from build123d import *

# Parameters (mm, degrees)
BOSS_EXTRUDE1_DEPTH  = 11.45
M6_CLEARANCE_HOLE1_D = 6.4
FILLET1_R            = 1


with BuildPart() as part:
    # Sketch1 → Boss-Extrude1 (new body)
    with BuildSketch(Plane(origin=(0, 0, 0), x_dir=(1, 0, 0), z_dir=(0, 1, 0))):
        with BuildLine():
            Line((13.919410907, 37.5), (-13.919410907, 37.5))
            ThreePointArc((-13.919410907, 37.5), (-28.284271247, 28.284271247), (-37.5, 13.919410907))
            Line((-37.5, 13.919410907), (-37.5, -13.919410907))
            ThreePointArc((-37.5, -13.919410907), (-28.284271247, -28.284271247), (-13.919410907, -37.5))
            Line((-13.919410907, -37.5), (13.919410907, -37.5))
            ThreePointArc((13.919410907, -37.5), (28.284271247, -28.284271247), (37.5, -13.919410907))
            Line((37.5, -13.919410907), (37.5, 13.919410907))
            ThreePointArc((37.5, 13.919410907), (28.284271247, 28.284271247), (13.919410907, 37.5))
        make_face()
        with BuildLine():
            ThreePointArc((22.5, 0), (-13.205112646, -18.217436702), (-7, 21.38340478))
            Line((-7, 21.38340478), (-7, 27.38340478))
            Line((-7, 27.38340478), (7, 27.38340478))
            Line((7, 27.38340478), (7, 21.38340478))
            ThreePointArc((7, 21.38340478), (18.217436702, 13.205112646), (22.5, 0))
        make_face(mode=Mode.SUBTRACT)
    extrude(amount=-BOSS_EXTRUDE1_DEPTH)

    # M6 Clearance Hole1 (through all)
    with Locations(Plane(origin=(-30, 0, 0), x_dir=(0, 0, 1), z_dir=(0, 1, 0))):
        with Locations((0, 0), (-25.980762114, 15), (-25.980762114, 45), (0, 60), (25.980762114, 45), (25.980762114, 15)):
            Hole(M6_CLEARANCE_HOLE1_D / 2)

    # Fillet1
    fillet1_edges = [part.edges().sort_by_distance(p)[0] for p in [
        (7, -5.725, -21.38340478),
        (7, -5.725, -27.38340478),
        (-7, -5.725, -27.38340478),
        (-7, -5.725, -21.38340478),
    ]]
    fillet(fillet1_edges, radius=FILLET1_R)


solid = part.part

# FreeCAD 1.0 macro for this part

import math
import FreeCAD as App
import Part
import Sketcher

V = App.Vector


def edges_at(feature, points):
    """Names of the edges that pass closest to the given points."""
    edges = feature.Shape.Edges
    near = lambda p: min(range(len(edges)), key=lambda i: edges[i].distToShape(Part.Vertex(*p))[0])
    return sorted({f"Edge{near(p) + 1}" for p in points})

doc = App.newDocument("Part")
body = doc.addObject("PartDesign::Body", "Body")

# Sketch on XZ plane
sketch1 = doc.addObject("Sketcher::SketchObject", "Sketch")
body.addObject(sketch1)
sketch1.AttachmentSupport = (doc.XZ_Plane, [""])
sketch1.MapMode = "FlatFace"
sketch1.addGeometry([
    Part.LineSegment(V(14, -38, 0), V(-14, -38, 0)),  # 0
    Part.ArcOfCircle(Part.Circle(V(0, 0, 0), V(0, 0, 1), 40), math.radians(-160), math.radians(-110)),  # 1
    Part.LineSegment(V(-38, -14, 0), V(-38, 14, 0)),  # 2
    Part.ArcOfCircle(Part.Circle(V(0, 0, 0), V(0, 0, 1), 40), math.radians(110), math.radians(160)),  # 3
    Part.LineSegment(V(-14, 38, 0), V(14, 38, 0)),  # 4
    Part.ArcOfCircle(Part.Circle(V(0, 0, 0), V(0, 0, 1), 40), math.radians(20), math.radians(70)),  # 5
    Part.LineSegment(V(38, 14, 0), V(38, -14, 0)),  # 6
    Part.ArcOfCircle(Part.Circle(V(0, 0, 0), V(0, 0, 1), 40), math.radians(-70), math.radians(-20)),  # 7
    Part.ArcOfCircle(Part.Circle(V(0, 0, 0), V(0, 0, 1), 23), math.radians(-72), math.radians(0)),  # 8
    Part.ArcOfCircle(Part.Circle(V(0, 0, 0), V(0, 0, 1), 22), math.radians(0), math.radians(252)),  # 9
    Part.LineSegment(V(-7, -21, 0), V(-7, -27, 0)),  # 10
    Part.LineSegment(V(-7, -27, 0), V(7, -27, 0)),  # 11
    Part.LineSegment(V(7, -27, 0), V(7, -21, 0)),  # 12
], False)
sketch1.addConstraint([
    Sketcher.Constraint("Coincident", 0, 2, 1, 2),
    Sketcher.Constraint("Coincident", 1, 1, 2, 1),
    Sketcher.Constraint("Coincident", 2, 2, 3, 2),
    Sketcher.Constraint("Coincident", 3, 1, 4, 1),
    Sketcher.Constraint("Coincident", 4, 2, 5, 2),
    Sketcher.Constraint("Coincident", 5, 1, 6, 1),
    Sketcher.Constraint("Coincident", 6, 2, 7, 2),
    Sketcher.Constraint("Coincident", 7, 1, 0, 1),
    Sketcher.Constraint("Tangent", 8, 2, 9, 1),
    Sketcher.Constraint("Coincident", 9, 2, 10, 1),
    Sketcher.Constraint("Coincident", 10, 2, 11, 1),
    Sketcher.Constraint("Coincident", 11, 2, 12, 1),
    Sketcher.Constraint("Coincident", 12, 2, 8, 1),
    Sketcher.Constraint("Horizontal", 0),
    Sketcher.Constraint("Vertical", 2),
    Sketcher.Constraint("Horizontal", 4),
    Sketcher.Constraint("Vertical", 6),
    Sketcher.Constraint("Vertical", 10),
    Sketcher.Constraint("Horizontal", 11),
    Sketcher.Constraint("Vertical", 12),
    Sketcher.Constraint("Coincident", 1, 3, -1, 1),
    Sketcher.Constraint("Coincident", 3, 3, -1, 1),
    Sketcher.Constraint("Coincident", 5, 3, -1, 1),
    Sketcher.Constraint("Coincident", 7, 3, -1, 1),
    Sketcher.Constraint("Coincident", 8, 3, -1, 1),
    Sketcher.Constraint("Equal", 1, 3),
    Sketcher.Constraint("Equal", 3, 5),
    Sketcher.Constraint("Equal", 5, 7),
    Sketcher.Constraint("Equal", 8, 9),
    Sketcher.Constraint("PointOnObject", 8, 2, -1),
    Sketcher.Constraint("Horizontal", 2, 2, 5, 1),
    Sketcher.Constraint("Horizontal", 9, 2, 12, 2),
    Sketcher.Constraint("Vertical", 0, 2, 3, 1),
    Sketcher.Constraint("Equal", 4, 2),
    Sketcher.Constraint("Radius", 1, 40.0),
    Sketcher.Constraint("Radius", 8, 22.5),
    Sketcher.Constraint("DistanceX", 11, 1, 11, 2, 14.0),
    Sketcher.Constraint("DistanceY", 10, 2, 10, 1, 6.0),
    Sketcher.Constraint("DistanceX", 8, 2, 5, 1, 15.0),
])
pad1 = doc.addObject("PartDesign::Pad", "Pad")
body.addObject(pad1)
pad1.Profile = sketch1
pad1.Length = 11.45

# Sketch on XZ plane
sketch2 = doc.addObject("Sketcher::SketchObject", "Sketch001")
body.addObject(sketch2)
sketch2.AttachmentSupport = (doc.XZ_Plane, [""])
sketch2.MapMode = "FlatFace"
sketch2.addGeometry([
    Part.Circle(V(-30, 0, 0), V(0, 0, 1), 3.2),  # 0
    Part.Circle(V(-15, -26, 0), V(0, 0, 1), 3.2),  # 1
    Part.Circle(V(15, -26, 0), V(0, 0, 1), 3.2),  # 2
    Part.Circle(V(30, 0, 0), V(0, 0, 1), 3.2),  # 3
    Part.Circle(V(15, 26, 0), V(0, 0, 1), 3.2),  # 4
    Part.Circle(V(-15, 26, 0), V(0, 0, 1), 3.2),  # 5
], False)
sketch2.addConstraint([
    Sketcher.Constraint("Equal", 0, 1),
    Sketcher.Constraint("Equal", 1, 2),
    Sketcher.Constraint("Equal", 2, 3),
    Sketcher.Constraint("Equal", 3, 4),
    Sketcher.Constraint("Equal", 4, 5),
    Sketcher.Constraint("Symmetric", 0, 3, 3, 3, -1, 1),
    Sketcher.Constraint("Symmetric", 1, 3, 4, 3, -1, 1),
    Sketcher.Constraint("Symmetric", 2, 3, 5, 3, -1, 1),
    Sketcher.Constraint("Symmetric", 1, 3, 2, 3, -2),
    Sketcher.Constraint("PointOnObject", 0, 3, -1),
    Sketcher.Constraint("Diameter", 0, 6.4),
    Sketcher.Constraint("DistanceX", 0, 3, -1, 1, 30.0),
    Sketcher.Constraint("DistanceX", 1, 3, -1, 1, 15.0),
    Sketcher.Constraint("DistanceY", 1, 3, -1, 1, 25.980762),
])
doc.recompute()
hole = doc.addObject("PartDesign::Hole", "Hole")
body.addObject(hole)
hole.Profile = sketch2
hole.ThreadType = "None"
hole.Diameter = 6.4
hole.DepthType = "ThroughAll"
hole.Reversed = True
doc.recompute()

fillet = doc.addObject("PartDesign::Fillet", "Fillet")
body.addObject(fillet)
fillet.Base = (hole, edges_at(hole, [
    (7, -5.725, -21.383),
    (7, -5.725, -27.383),
    (-7, -5.725, -27.383),
    (-7, -5.725, -21.383),
]))
fillet.Radius = 1

doc.recompute()
